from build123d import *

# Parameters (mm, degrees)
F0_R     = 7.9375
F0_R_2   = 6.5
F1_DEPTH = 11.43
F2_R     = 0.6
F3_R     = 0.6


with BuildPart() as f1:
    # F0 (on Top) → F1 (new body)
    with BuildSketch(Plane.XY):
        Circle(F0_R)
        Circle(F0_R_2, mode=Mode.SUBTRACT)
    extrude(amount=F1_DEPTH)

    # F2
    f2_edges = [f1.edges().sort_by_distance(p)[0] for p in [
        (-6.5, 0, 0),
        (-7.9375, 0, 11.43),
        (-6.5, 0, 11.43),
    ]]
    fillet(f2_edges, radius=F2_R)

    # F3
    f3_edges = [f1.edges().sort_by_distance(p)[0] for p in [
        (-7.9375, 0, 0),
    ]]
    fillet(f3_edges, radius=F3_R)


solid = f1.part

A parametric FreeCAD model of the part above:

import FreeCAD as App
import Part
import Sketcher
from FreeCAD import Vector


def edges_at(feature, points):
    """Names of the edges that pass closest to the given points."""
    edges = feature.Shape.Edges
    near = lambda p: min(range(len(edges)), key=lambda i: edges[i].distToShape(Part.Vertex(*p))[0])
    return sorted({f"Edge{near(p) + 1}" for p in points})

doc = App.newDocument("Part")
body = doc.addObject("PartDesign::Body", "Body")

sketch1 = body.newObject("Sketcher::SketchObject", "Sketch")
sketch1.AttachmentSupport = (doc.getObject("XY_Plane"), [""])
sketch1.MapMode = "FlatFace"
sketch1.addGeometry([
    Part.Circle(Vector(0, 0, 0), Vector(0, 0, 1), 7.9375),
    Part.Circle(Vector(0, 0, 0), Vector(0, 0, 1), 6.5),
], False)
sketch1.addConstraint([
    Sketcher.Constraint("Coincident", 0, 3, -1, 1),
    Sketcher.Constraint("Coincident", 1, 3, -1, 1),
    Sketcher.Constraint("Diameter", 1, 13.0),
    Sketcher.Constraint("Diameter", 0, 15.875),
])
pad1 = body.newObject("PartDesign::Pad", "Pad")
pad1.Profile = sketch1
pad1.Length = 11.43
doc.recompute()

fillet = body.newObject("PartDesign::Fillet", "Fillet")
fillet.Base = (pad1, edges_at(pad1, [(-6.5, 0, 0), (-7.938, 0, 11.43), (-6.5, 0, 11.43)]))
fillet.Radius = 0.6
doc.recompute()

fillet2 = body.newObject("PartDesign::Fillet", "Fillet001")
fillet2.Base = (fillet, edges_at(fillet, [(-7.938, 0, 0)]))
fillet2.Radius = 0.6

doc.recompute()
